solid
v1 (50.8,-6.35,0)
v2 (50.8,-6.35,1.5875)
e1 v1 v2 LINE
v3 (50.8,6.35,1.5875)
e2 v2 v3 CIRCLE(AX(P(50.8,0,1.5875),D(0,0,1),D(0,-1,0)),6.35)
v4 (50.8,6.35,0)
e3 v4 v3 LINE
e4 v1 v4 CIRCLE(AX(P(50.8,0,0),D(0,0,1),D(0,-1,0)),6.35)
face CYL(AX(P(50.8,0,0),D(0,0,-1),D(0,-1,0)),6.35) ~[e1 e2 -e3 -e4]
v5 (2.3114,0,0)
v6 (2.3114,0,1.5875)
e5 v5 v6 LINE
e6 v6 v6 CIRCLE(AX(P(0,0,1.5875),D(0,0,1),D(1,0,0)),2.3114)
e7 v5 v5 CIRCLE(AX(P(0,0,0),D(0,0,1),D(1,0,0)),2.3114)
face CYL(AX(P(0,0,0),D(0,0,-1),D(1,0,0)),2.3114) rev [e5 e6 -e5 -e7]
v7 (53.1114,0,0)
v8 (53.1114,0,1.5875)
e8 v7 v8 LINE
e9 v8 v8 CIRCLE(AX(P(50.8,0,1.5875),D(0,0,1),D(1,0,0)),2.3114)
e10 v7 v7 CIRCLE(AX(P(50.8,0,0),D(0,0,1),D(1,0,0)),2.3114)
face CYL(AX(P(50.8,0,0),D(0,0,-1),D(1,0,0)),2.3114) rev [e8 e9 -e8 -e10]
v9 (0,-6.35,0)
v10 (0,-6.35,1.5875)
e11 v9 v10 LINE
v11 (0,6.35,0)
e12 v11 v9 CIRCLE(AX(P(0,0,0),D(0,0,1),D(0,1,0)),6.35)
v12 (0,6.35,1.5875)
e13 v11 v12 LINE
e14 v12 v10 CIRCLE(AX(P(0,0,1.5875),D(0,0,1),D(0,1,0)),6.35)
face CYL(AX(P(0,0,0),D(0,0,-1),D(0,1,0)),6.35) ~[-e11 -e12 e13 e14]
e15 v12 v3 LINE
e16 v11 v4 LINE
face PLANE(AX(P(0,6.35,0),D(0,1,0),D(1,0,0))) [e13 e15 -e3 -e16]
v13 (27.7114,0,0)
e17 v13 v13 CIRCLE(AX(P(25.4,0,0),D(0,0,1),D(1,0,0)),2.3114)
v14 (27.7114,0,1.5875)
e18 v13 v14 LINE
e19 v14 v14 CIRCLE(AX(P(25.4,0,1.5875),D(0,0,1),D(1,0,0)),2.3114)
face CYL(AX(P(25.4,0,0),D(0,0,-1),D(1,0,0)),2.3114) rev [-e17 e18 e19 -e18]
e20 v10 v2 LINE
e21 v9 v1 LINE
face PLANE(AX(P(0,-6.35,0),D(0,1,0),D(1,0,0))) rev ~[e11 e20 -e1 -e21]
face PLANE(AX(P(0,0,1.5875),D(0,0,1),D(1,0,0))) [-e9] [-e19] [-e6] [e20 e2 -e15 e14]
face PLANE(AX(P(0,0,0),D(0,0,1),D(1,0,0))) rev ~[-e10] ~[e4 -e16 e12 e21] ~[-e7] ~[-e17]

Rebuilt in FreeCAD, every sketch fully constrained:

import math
import FreeCAD as App
import Part
import Sketcher

V = App.Vector
Q = App.Units.Quantity

doc = App.newDocument("Part")
body = doc.addObject("PartDesign::Body", "Body")

sketch1 = doc.addObject("Sketcher::SketchObject", "Sketch")
body.addObject(sketch1)
sketch1.AttachmentSupport = (doc.XY_Plane, [""])
sketch1.MapMode = "FlatFace"
sketch1.addGeometry(Part.LineSegment(V(50.8, 6.35, 0), V(0, 6.35, 0)), False)
sketch1.addGeometry(Part.ArcOfCircle(Part.Circle(V(0, 0, 0), V(0, 0, 1), 6.35), math.radians(90), math.radians(270)), False)
sketch1.addGeometry(Part.LineSegment(V(0, -6.35, 0), V(50.8, -6.35, 0)), False)
sketch1.addGeometry(Part.ArcOfCircle(Part.Circle(V(50.8, 0, 0), V(0, 0, 1), 6.35), math.radians(-90), math.radians(90)), False)
sketch1.addGeometry(Part.Circle(V(0, 0, 0), V(0, 0, 1), 2.3114), False)
sketch1.addGeometry(Part.Circle(V(25.4, 0, 0), V(0, 0, 1), 2.3114), False)
sketch1.addGeometry(Part.Circle(V(50.8, 0, 0), V(0, 0, 1), 2.3114), False)
sketch1.addConstraint(Sketcher.Constraint("Tangent", 0, 2, 1, 1))
sketch1.addConstraint(Sketcher.Constraint("Tangent", 1, 2, 2, 1))
sketch1.addConstraint(Sketcher.Constraint("Tangent", 2, 2, 3, 1))
sketch1.addConstraint(Sketcher.Constraint("Tangent", 3, 2, 0, 1))
sketch1.addConstraint(Sketcher.Constraint("Horizontal", 0))
sketch1.addConstraint(Sketcher.Constraint("Horizontal", 2))
sketch1.addConstraint(Sketcher.Constraint("Coincident", 1, 3, -1, 1))
sketch1.addConstraint(Sketcher.Constraint("Coincident", 4, 3, -1, 1))
sketch1.addConstraint(Sketcher.Constraint("Coincident", 6, 3, 3, 3))
sketch1.addConstraint(Sketcher.Constraint("Equal", 4, 5))
sketch1.addConstraint(Sketcher.Constraint("Equal", 5, 6))
sketch1.addConstraint(Sketcher.Constraint("PointOnObject", 5, 3, -1))
sketch1.addConstraint(Sketcher.Constraint("Radius", 1, Q("0.25 in")))
sketch1.addConstraint(Sketcher.Constraint("Diameter", 4, Q("0.182 in")))
sketch1.addConstraint(Sketcher.Constraint("DistanceX", 0, 2, 0, 1, Q("2 in")))
sketch1.addConstraint(Sketcher.Constraint("DistanceX", -1, 1, 5, 3, Q("1 in")))
pad1 = doc.addObject("PartDesign::Pad", "Pad")
body.addObject(pad1)
pad1.Profile = sketch1
pad1.Length = Q("0.0625 in")

doc.recompute()
